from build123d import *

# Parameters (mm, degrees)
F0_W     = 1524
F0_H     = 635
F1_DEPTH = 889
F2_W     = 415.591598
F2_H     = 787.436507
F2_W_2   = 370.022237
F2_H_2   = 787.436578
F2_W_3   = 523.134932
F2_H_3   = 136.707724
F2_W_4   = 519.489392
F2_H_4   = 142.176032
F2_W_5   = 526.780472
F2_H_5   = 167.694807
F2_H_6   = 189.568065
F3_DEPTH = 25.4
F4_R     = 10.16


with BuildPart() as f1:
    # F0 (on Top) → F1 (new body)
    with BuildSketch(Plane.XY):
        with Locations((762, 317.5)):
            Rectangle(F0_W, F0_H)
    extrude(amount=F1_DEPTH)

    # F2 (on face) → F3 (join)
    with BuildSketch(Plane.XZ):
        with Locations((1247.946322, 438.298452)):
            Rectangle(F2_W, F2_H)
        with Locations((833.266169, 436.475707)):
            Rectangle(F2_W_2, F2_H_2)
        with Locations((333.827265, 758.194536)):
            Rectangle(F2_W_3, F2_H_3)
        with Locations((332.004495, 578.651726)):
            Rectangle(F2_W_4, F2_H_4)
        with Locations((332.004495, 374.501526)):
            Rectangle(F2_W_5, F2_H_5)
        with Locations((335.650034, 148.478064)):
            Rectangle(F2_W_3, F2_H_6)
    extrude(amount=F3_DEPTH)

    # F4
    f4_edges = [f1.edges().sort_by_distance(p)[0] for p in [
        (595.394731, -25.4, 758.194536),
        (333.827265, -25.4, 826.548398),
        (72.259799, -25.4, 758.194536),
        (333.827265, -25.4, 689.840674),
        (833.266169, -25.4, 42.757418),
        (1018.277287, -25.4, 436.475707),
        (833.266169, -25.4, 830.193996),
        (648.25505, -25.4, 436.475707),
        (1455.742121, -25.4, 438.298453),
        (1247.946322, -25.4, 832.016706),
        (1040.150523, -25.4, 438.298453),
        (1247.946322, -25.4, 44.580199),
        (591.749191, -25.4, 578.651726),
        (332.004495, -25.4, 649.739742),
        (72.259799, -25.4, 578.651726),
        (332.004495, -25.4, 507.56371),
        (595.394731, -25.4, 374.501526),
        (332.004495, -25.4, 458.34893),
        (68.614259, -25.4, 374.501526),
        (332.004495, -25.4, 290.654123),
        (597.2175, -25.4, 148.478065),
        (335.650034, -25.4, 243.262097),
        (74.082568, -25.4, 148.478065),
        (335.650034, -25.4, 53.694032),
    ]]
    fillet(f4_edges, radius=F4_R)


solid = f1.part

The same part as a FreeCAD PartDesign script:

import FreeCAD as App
import Part
import Sketcher
from FreeCAD import Vector
Q = App.Units.Quantity


def edges_at(feature, points):
    """Names of the edges that pass closest to the given points."""
    edges = feature.Shape.Edges
    near = lambda p: min(range(len(edges)), key=lambda i: edges[i].distToShape(Part.Vertex(*p))[0])
    return sorted({f"Edge{near(p) + 1}" for p in points})


def add_polygon(sketch, points):
    """Adds a closed chain of lines whose ends are joined by coincident constraints."""
    first, n = sketch.GeometryCount, len(points)
    for a, b in zip(points, points[1:] + points[:1]):
        sketch.addGeometry(Part.LineSegment(App.Vector(*a, 0), App.Vector(*b, 0)), False)
    for i in range(n):
        sketch.addConstraint(Sketcher.Constraint("Coincident", first + i, 2, first + (i + 1) % n, 1))

doc = App.newDocument("Part")
body = doc.addObject("PartDesign::Body", "Body")

# Sketch on XY plane
sketch1 = body.newObject("Sketcher::SketchObject", "Sketch")
sketch1.AttachmentSupport = (doc.getObject("XY_Plane"), [""])
sketch1.MapMode = "FlatFace"
add_polygon(sketch1, [(0, 635), (0, 0), (1524, 0), (1524, 635)])  # lines 0-3
sketch1.addConstraint([
    Sketcher.Constraint("Vertical", 0),
    Sketcher.Constraint("Horizontal", 1),
    Sketcher.Constraint("Vertical", 2),
    Sketcher.Constraint("Horizontal", 3),
    Sketcher.Constraint("Coincident", 0, 2, -1, 1),
    Sketcher.Constraint("DistanceX", 1, 1, 1, 2, Q("60 in")),
    Sketcher.Constraint("DistanceY", 0, 2, 0, 1, Q("25 in")),
])
pad1 = body.newObject("PartDesign::Pad", "Pad")
pad1.Profile = sketch1
pad1.Length = Q("35 in")

# Sketch on XZ plane
sketch2 = body.newObject("Sketcher::SketchObject", "Sketch001")
sketch2.AttachmentSupport = (doc.getObject("XZ_Plane"), [""])
sketch2.MapMode = "FlatFace"
add_polygon(sketch2, [(1040.150523, 832.016705), (1040.150523, 44.580199), (1455.742121, 44.580199), (1455.742121, 832.016705)])  # lines 0-3
add_polygon(sketch2, [(648.255051, 830.193996), (648.255051, 42.757418), (1018.277288, 42.757418), (1018.277288, 830.193996)])  # lines 4-7
add_polygon(sketch2, [(72.259799, 826.548398), (72.259799, 689.840674), (595.394731, 689.840674), (595.394731, 826.548398)])  # lines 8-11
add_polygon(sketch2, [(72.259799, 649.739742), (72.259799, 507.56371), (591.749191, 507.56371), (591.749191, 649.739742)])  # lines 12-15
add_polygon(sketch2, [(68.614259, 458.348929), (68.614259, 290.654123), (595.394731, 290.654123), (595.394731, 458.348929)])  # lines 16-19
add_polygon(sketch2, [(74.082568, 243.262097), (74.082568, 53.694032), (597.2175, 53.694032), (597.2175, 243.262097)])  # lines 20-23
sketch2.addConstraint([
    Sketcher.Constraint("Vertical", 0),
    Sketcher.Constraint("Horizontal", 1),
    Sketcher.Constraint("Vertical", 2),
    Sketcher.Constraint("Horizontal", 3),
    Sketcher.Constraint("Vertical", 4),
    Sketcher.Constraint("Horizontal", 5),
    Sketcher.Constraint("Vertical", 6),
    Sketcher.Constraint("Horizontal", 7),
    Sketcher.Constraint("Vertical", 8),
    Sketcher.Constraint("Horizontal", 9),
    Sketcher.Constraint("Vertical", 10),
    Sketcher.Constraint("Horizontal", 11),
    Sketcher.Constraint("Vertical", 12),
    Sketcher.Constraint("Horizontal", 13),
    Sketcher.Constraint("Vertical", 14),
    Sketcher.Constraint("Horizontal", 15),
    Sketcher.Constraint("Vertical", 16),
    Sketcher.Constraint("Horizontal", 17),
    Sketcher.Constraint("Vertical", 18),
    Sketcher.Constraint("Horizontal", 19),
    Sketcher.Constraint("Vertical", 20),
    Sketcher.Constraint("Horizontal", 21),
    Sketcher.Constraint("Vertical", 22),
    Sketcher.Constraint("Horizontal", 23),
    Sketcher.Constraint("Vertical", 11, 2, 12, 2),
    Sketcher.Constraint("Vertical", 10, 2, 17, 2),
    Sketcher.Constraint("Equal", 11, 21),
    Sketcher.Constraint("DistanceX", -1, 1, 21, 2, Q("23.5125 in")),
    Sketcher.Constraint("DistanceY", 16, 2, 11, 2, Q("21.0981998 in")),
    Sketcher.Constraint("DistanceX", 9, 1, 9, 2, 523.134932),
    Sketcher.Constraint("DistanceX", 13, 1, 13, 2, 519.489392),
    Sketcher.Constraint("DistanceX", 17, 1, 17, 2, 526.780472),
    Sketcher.Constraint("DistanceY", 12, 2, 12, 1, 142.176032),
    Sketcher.Constraint("DistanceY", -1, 1, 0, 2, 44.580199),
    Sketcher.Constraint("DistanceX", -1, 1, 8, 2, 72.259799),
    Sketcher.Constraint("DistanceY", -1, 1, 10, 2, 826.548398),
    Sketcher.Constraint("DistanceY", 20, 2, 19, 2, 404.654898),
    Sketcher.Constraint("DistanceX", 1, 1, 1, 2, 415.591598),
    Sketcher.Constraint("DistanceX", 5, 1, 5, 2, 370.022237),
    Sketcher.Constraint("DistanceY", 0, 2, 0, 1, 787.436507),
    Sketcher.Constraint("DistanceY", 4, 2, 4, 1, 787.436578),
    Sketcher.Constraint("DistanceY", 8, 2, 8, 1, 136.707724),
    Sketcher.Constraint("DistanceY", 16, 2, 16, 1, 167.694807),
    Sketcher.Constraint("DistanceY", 20, 2, 20, 1, 189.568065),
    Sketcher.Constraint("DistanceX", -1, 1, 1, 2, 1455.742121),
    Sketcher.Constraint("DistanceX", -1, 1, 4, 2, 648.255051),
    Sketcher.Constraint("DistanceY", -1, 1, 12, 2, 507.56371),
    Sketcher.Constraint("DistanceY", 4, 2, 0, 2, 1.822781),
])
pad2 = body.newObject("PartDesign::Pad", "Pad001")
pad2.Profile = sketch2
pad2.Length = Q("1 in")
doc.recompute()

fillet = body.newObject("PartDesign::Fillet", "Fillet")
fillet.Base = (pad2, edges_at(pad2, [
    (595.395, -25.4, 758.195),
    (333.827, -25.4, 826.548),
    (72.26, -25.4, 758.195),
    (333.827, -25.4, 689.841),
    (833.266, -25.4, 42.757),
    (1018.277, -25.4, 436.476),
    (833.266, -25.4, 830.194),
    (648.255, -25.4, 436.476),
    (1455.742, -25.4, 438.298),
    (1247.946, -25.4, 832.017),
    (1040.151, -25.4, 438.298),
    (1247.946, -25.4, 44.58),
    (591.749, -25.4, 578.652),
    (332.004, -25.4, 649.74),
    (72.26, -25.4, 578.652),
    (332.004, -25.4, 507.564),
    (595.395, -25.4, 374.502),
    (332.004, -25.4, 458.349),
    (68.614, -25.4, 374.502),
    (332.004, -25.4, 290.654),
    (597.217, -25.4, 148.478),
    (335.65, -25.4, 243.262),
    (74.083, -25.4, 148.478),
    (335.65, -25.4, 53.694),
]))
fillet.Radius = Q("0.4 in")

doc.recompute()
